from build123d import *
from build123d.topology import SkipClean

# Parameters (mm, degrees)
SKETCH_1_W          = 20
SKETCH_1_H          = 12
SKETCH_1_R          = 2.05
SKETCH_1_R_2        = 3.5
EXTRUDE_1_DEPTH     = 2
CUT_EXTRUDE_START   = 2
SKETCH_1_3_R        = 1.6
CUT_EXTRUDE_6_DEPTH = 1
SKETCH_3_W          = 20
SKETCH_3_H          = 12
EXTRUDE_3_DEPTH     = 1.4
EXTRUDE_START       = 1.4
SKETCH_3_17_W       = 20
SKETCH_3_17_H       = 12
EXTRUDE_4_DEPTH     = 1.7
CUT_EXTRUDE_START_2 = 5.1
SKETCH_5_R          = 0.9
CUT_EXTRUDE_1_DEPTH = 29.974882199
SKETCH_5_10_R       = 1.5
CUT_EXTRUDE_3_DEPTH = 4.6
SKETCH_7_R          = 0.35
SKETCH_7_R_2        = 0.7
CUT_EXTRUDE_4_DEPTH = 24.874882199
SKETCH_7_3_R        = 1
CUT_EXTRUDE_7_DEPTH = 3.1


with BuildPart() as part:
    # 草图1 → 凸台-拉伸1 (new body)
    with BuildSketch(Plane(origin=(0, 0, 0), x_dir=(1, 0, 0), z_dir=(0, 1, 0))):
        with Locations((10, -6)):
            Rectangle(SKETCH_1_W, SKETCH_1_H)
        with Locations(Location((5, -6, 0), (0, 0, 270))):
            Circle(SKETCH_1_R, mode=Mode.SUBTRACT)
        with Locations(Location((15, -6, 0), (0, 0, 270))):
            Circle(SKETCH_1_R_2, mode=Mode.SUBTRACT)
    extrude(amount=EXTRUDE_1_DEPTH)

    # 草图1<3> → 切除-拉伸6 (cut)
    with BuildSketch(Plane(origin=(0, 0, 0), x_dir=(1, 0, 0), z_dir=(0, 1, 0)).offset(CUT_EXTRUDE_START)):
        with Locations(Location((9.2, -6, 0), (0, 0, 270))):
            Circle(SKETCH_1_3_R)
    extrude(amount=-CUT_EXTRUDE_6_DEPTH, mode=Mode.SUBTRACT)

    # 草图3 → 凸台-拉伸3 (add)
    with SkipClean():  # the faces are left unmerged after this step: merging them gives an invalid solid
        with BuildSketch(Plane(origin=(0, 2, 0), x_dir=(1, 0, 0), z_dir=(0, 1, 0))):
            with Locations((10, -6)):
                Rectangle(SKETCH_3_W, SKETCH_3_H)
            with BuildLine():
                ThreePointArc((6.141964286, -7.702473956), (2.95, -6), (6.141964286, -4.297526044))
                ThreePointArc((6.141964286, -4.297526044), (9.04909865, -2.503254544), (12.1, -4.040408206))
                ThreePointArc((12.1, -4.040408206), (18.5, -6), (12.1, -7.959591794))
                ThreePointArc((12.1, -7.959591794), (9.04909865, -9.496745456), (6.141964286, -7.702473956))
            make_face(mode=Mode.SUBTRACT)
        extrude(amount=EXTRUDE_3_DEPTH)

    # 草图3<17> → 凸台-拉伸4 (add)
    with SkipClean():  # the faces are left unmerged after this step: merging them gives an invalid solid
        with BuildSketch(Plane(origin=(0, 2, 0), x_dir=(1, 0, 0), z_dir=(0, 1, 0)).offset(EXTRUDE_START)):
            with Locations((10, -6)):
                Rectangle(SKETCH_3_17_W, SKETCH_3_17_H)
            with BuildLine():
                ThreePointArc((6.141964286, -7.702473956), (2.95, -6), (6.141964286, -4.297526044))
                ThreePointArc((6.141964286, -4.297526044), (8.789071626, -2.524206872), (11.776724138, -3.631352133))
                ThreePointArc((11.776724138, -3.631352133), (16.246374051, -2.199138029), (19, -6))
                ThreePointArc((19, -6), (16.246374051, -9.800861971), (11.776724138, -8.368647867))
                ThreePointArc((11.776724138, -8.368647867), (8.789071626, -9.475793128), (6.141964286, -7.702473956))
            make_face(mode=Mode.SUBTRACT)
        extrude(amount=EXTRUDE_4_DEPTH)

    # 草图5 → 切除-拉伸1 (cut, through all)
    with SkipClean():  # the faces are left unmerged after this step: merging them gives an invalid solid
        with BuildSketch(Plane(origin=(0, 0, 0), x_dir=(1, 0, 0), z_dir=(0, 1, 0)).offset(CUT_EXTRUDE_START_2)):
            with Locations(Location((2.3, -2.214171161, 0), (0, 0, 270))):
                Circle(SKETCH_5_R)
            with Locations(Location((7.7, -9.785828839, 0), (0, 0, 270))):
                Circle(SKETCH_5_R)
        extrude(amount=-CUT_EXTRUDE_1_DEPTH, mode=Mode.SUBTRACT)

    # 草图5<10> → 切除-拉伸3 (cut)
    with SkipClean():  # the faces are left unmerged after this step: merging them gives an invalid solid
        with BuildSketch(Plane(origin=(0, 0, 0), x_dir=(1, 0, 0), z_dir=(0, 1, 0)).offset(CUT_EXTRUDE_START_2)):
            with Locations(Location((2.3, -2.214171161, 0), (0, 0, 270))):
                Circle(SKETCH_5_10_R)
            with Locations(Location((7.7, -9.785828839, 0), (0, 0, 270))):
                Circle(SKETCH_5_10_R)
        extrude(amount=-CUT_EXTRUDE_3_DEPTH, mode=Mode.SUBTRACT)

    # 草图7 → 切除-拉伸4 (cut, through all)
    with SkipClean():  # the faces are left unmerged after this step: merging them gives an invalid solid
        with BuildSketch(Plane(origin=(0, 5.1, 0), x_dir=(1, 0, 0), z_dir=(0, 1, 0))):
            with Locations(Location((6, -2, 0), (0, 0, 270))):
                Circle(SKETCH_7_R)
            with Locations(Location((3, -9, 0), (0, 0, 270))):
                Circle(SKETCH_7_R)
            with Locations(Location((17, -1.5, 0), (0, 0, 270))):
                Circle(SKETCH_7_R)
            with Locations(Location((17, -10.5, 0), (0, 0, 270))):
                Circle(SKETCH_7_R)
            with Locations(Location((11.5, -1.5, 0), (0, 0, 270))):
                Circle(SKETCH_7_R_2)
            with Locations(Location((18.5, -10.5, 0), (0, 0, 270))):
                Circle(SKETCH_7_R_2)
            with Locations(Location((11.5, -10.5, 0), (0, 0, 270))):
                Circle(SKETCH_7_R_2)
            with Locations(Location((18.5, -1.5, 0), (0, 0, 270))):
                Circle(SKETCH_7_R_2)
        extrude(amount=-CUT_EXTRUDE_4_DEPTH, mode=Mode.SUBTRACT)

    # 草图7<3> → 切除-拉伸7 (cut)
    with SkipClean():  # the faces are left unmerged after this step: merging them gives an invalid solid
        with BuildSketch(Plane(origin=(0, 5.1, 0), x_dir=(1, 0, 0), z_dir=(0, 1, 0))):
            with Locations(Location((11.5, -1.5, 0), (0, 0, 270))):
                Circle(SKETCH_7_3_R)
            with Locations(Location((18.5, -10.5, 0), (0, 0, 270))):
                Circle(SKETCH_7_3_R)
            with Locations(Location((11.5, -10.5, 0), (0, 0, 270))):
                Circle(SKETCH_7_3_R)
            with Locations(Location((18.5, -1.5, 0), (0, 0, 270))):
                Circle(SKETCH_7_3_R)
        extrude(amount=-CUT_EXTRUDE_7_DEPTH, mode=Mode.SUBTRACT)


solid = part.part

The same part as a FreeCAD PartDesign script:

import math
import FreeCAD as App
import Part
import Sketcher


def add_polygon(sketch, points):
    """Adds a closed chain of lines whose ends are joined by coincident constraints."""
    first, n = sketch.GeometryCount, len(points)
    for a, b in zip(points, points[1:] + points[:1]):
        sketch.addGeometry(Part.LineSegment(App.Vector(*a, 0), App.Vector(*b, 0)), False)
    for i in range(n):
        sketch.addConstraint(Sketcher.Constraint("Coincident", first + i, 2, first + (i + 1) % n, 1))

doc = App.newDocument("Part")
body = doc.addObject("PartDesign::Body", "Body")

sketch1 = body.newObject("Sketcher::SketchObject", "Sketch")
sketch1.AttachmentSupport = (doc.getObject("XZ_Plane"), [""])
sketch1.MapMode = "FlatFace"
add_polygon(sketch1, [(0, 0), (0, 12), (20, 12), (20, 0)])
sketch1.addGeometry(Part.Circle(App.Vector(5, 6, 0), App.Vector(0, 0, 1), 2), False)
sketch1.addGeometry(Part.Circle(App.Vector(15, 6, 0), App.Vector(0, 0, 1), 3.5), False)
sketch1.addConstraint([
    Sketcher.Constraint("Vertical", 0),
    Sketcher.Constraint("Horizontal", 1),
    Sketcher.Constraint("Vertical", 2),
    Sketcher.Constraint("Horizontal", 3),
    Sketcher.Constraint("Coincident", 3, 2, -1, 1),
    Sketcher.Constraint("Horizontal", 4, 3, 5, 3),
    Sketcher.Constraint("Diameter", 5, 7.0),
    Sketcher.Constraint("Diameter", 4, 4.1),
    Sketcher.Constraint("DistanceX", 1, 1, 1, 2, 20.0),
    Sketcher.Constraint("DistanceY", 0, 1, 0, 2, 12.0),
    Sketcher.Constraint("DistanceX", -1, 1, 4, 3, 5.0),
    Sketcher.Constraint("DistanceY", -1, 1, 4, 3, 6.0),
    Sketcher.Constraint("DistanceX", -1, 1, 5, 3, 15.0),
])
pad1 = body.newObject("PartDesign::Pad", "Pad")
pad1.Profile = sketch1
pad1.Length = 2
pad1.Reversed = True

sketch2 = body.newObject("Sketcher::SketchObject", "Sketch001")
sketch2.AttachmentSupport = (doc.getObject("XZ_Plane"), [""])
sketch2.MapMode = "FlatFace"
sketch2.AttachmentOffset = App.Placement(App.Vector(0, 0, -2), App.Rotation())
sketch2.addGeometry(Part.Circle(App.Vector(9.2, 6, 0), App.Vector(0, 0, 1), 1.6), False)
sketch2.addConstraint([
    Sketcher.Constraint("Diameter", 0, 3.2),
    Sketcher.Constraint("DistanceY", -1, 1, 0, 3, 6.0),
    Sketcher.Constraint("DistanceX", -1, 1, 0, 3, 9.2),
])
pocket1 = body.newObject("PartDesign::Pocket", "Pocket")
pocket1.Profile = sketch2
pocket1.Length = 1
pocket1.Reversed = True

sketch3 = body.newObject("Sketcher::SketchObject", "Sketch002")
sketch3.AttachmentSupport = (doc.getObject("XZ_Plane"), [""])
sketch3.MapMode = "FlatFace"
sketch3.AttachmentOffset = App.Placement(App.Vector(0, 0, -2), App.Rotation())
add_polygon(sketch3, [(0, 0), (0, 12), (20, 12), (20, 0)])
sketch3.addGeometry(Part.ArcOfCircle(Part.Circle(App.Vector(9.2, 6, 0), App.Vector(0, 0, 1), 3.5), math.radians(34), math.radians(151)), False)
sketch3.addGeometry(Part.ArcOfCircle(Part.Circle(App.Vector(5, 6, 0), App.Vector(0, 0, 1), 2), math.radians(56), math.radians(304)), False)
sketch3.addGeometry(Part.ArcOfCircle(Part.Circle(App.Vector(9.2, 6, 0), App.Vector(0, 0, 1), 3.5), math.radians(-151), math.radians(-34)), False)
sketch3.addGeometry(Part.ArcOfCircle(Part.Circle(App.Vector(15, 6, 0), App.Vector(0, 0, 1), 3.5), math.radians(-146), math.radians(146)), False)
sketch3.addConstraint([
    Sketcher.Constraint("Coincident", 4, 2, 5, 1),
    Sketcher.Constraint("Coincident", 5, 2, 6, 1),
    Sketcher.Constraint("Coincident", 6, 2, 7, 1),
    Sketcher.Constraint("Coincident", 7, 2, 4, 1),
    Sketcher.Constraint("Vertical", 0),
    Sketcher.Constraint("Horizontal", 1),
    Sketcher.Constraint("Vertical", 2),
    Sketcher.Constraint("Horizontal", 3),
    Sketcher.Constraint("Coincident", 3, 2, -1, 1),
    Sketcher.Constraint("Coincident", 6, 3, 4, 3),
    Sketcher.Constraint("Equal", 4, 6),
    Sketcher.Constraint("Equal", 6, 7),
    Sketcher.Constraint("Horizontal", 4, 3, 5, 3),
    Sketcher.Constraint("Horizontal", 6, 3, 7, 3),
    Sketcher.Constraint("Radius", 4, 3.5),
    Sketcher.Constraint("DistanceX", 1, 1, 1, 2, 20.0),
    Sketcher.Constraint("DistanceY", 0, 1, 0, 2, 12.0),
    Sketcher.Constraint("Radius", 5, 2.05),
    Sketcher.Constraint("DistanceY", -1, 1, 4, 3, 6.0),
    Sketcher.Constraint("DistanceX", -1, 1, 5, 3, 5.0),
    Sketcher.Constraint("DistanceX", -1, 1, 7, 3, 15.0),
    Sketcher.Constraint("DistanceX", -1, 1, 4, 3, 9.2),
])
pad2 = body.newObject("PartDesign::Pad", "Pad001")
pad2.Profile = sketch3
pad2.Length = 1.4
pad2.Reversed = True

sketch4 = body.newObject("Sketcher::SketchObject", "Sketch003")
sketch4.AttachmentSupport = (doc.getObject("XZ_Plane"), [""])
sketch4.MapMode = "FlatFace"
sketch4.AttachmentOffset = App.Placement(App.Vector(0, 0, -3.4), App.Rotation())
add_polygon(sketch4, [(0, 0), (0, 12), (20, 12), (20, 0)])
sketch4.addGeometry(Part.ArcOfCircle(Part.Circle(App.Vector(9.2, 6, 0), App.Vector(0, 0, 1), 3.5), math.radians(43), math.radians(151)), False)
sketch4.addGeometry(Part.ArcOfCircle(Part.Circle(App.Vector(5, 6, 0), App.Vector(0, 0, 1), 2), math.radians(56), math.radians(304)), False)
sketch4.addGeometry(Part.ArcOfCircle(Part.Circle(App.Vector(9.2, 6, 0), App.Vector(0, 0, 1), 3.5), math.radians(-151), math.radians(-43)), False)
sketch4.addGeometry(Part.ArcOfCircle(Part.Circle(App.Vector(15, 6, 0), App.Vector(0, 0, 1), 4), math.radians(-144), math.radians(0)), False)
sketch4.addGeometry(Part.ArcOfCircle(Part.Circle(App.Vector(15, 6, 0), App.Vector(0, 0, 1), 4), math.radians(0), math.radians(144)), False)
sketch4.addConstraint([
    Sketcher.Constraint("Coincident", 4, 2, 5, 1),
    Sketcher.Constraint("Coincident", 5, 2, 6, 1),
    Sketcher.Constraint("Coincident", 6, 2, 7, 1),
    Sketcher.Constraint("Tangent", 7, 2, 8, 1),
    Sketcher.Constraint("Coincident", 8, 2, 4, 1),
    Sketcher.Constraint("Vertical", 0),
    Sketcher.Constraint("Horizontal", 1),
    Sketcher.Constraint("Vertical", 2),
    Sketcher.Constraint("Horizontal", 3),
    Sketcher.Constraint("Coincident", 3, 2, -1, 1),
    Sketcher.Constraint("Coincident", 6, 3, 4, 3),
    Sketcher.Constraint("Equal", 4, 6),
    Sketcher.Constraint("Equal", 7, 8),
    Sketcher.Constraint("Horizontal", 4, 3, 5, 3),
    Sketcher.Constraint("Horizontal", 6, 3, 7, 3),
    Sketcher.Constraint("Horizontal", 8, 3, 7, 2),
    Sketcher.Constraint("Radius", 7, 4.0),
    Sketcher.Constraint("Radius", 4, 3.5),
    Sketcher.Constraint("DistanceX", 1, 1, 1, 2, 20.0),
    Sketcher.Constraint("DistanceY", 0, 1, 0, 2, 12.0),
    Sketcher.Constraint("Radius", 5, 2.05),
    Sketcher.Constraint("DistanceY", -1, 1, 4, 3, 6.0),
    Sketcher.Constraint("DistanceX", -1, 1, 5, 3, 5.0),
    Sketcher.Constraint("DistanceX", -1, 1, 7, 3, 15.0),
    Sketcher.Constraint("DistanceX", -1, 1, 4, 3, 9.2),
])
pad3 = body.newObject("PartDesign::Pad", "Pad002")
pad3.Profile = sketch4
pad3.Length = 1.7
pad3.Reversed = True

sketch5 = body.newObject("Sketcher::SketchObject", "Sketch004")
sketch5.AttachmentSupport = (doc.getObject("XZ_Plane"), [""])
sketch5.MapMode = "FlatFace"
sketch5.AttachmentOffset = App.Placement(App.Vector(0, 0, -5.1), App.Rotation())
sketch5.addGeometry([
    Part.Circle(App.Vector(2.3, 2.2, 0), App.Vector(0, 0, 1), 0.9),
    Part.Circle(App.Vector(7.7, 9.8, 0), App.Vector(0, 0, 1), 0.9),
], False)
sketch5.addConstraint([
    Sketcher.Constraint("Equal", 0, 1),
    Sketcher.Constraint("Diameter", 0, 1.8),
    Sketcher.Constraint("DistanceX", -1, 1, 0, 3, 2.3),
    Sketcher.Constraint("DistanceX", -1, 1, 1, 3, 7.7),
    Sketcher.Constraint("DistanceY", -1, 1, 0, 3, 2.214171),
    Sketcher.Constraint("DistanceY", -1, 1, 1, 3, 9.785829),
])
pocket2 = body.newObject("PartDesign::Pocket", "Pocket001")
pocket2.Profile = sketch5
pocket2.Type = "ThroughAll"
pocket2.Reversed = True

sketch6 = body.newObject("Sketcher::SketchObject", "Sketch005")
sketch6.AttachmentSupport = (doc.getObject("XZ_Plane"), [""])
sketch6.MapMode = "FlatFace"
sketch6.AttachmentOffset = App.Placement(App.Vector(0, 0, -5.1), App.Rotation())
sketch6.addGeometry([
    Part.Circle(App.Vector(2.3, 2.2, 0), App.Vector(0, 0, 1), 1.5),
    Part.Circle(App.Vector(7.7, 9.8, 0), App.Vector(0, 0, 1), 1.5),
], False)
sketch6.addConstraint([
    Sketcher.Constraint("Equal", 0, 1),
    Sketcher.Constraint("Diameter", 0, 3.0),
    Sketcher.Constraint("DistanceX", -1, 1, 0, 3, 2.3),
    Sketcher.Constraint("DistanceX", -1, 1, 1, 3, 7.7),
    Sketcher.Constraint("DistanceY", -1, 1, 0, 3, 2.214171),
    Sketcher.Constraint("DistanceY", -1, 1, 1, 3, 9.785829),
])
pocket3 = body.newObject("PartDesign::Pocket", "Pocket002")
pocket3.Profile = sketch6
pocket3.Length = 4.6
pocket3.Reversed = True

sketch7 = body.newObject("Sketcher::SketchObject", "Sketch006")
sketch7.AttachmentSupport = (doc.getObject("XZ_Plane"), [""])
sketch7.MapMode = "FlatFace"
sketch7.AttachmentOffset = App.Placement(App.Vector(0, 0, -5.1), App.Rotation())
sketch7.addGeometry([
    Part.Circle(App.Vector(6, 2, 0), App.Vector(0, 0, 1), 0.35),
    Part.Circle(App.Vector(3, 9, 0), App.Vector(0, 0, 1), 0.35),
    Part.Circle(App.Vector(17, 1.5, 0), App.Vector(0, 0, 1), 0.35),
    Part.Circle(App.Vector(17, 10.5, 0), App.Vector(0, 0, 1), 0.35),
    Part.Circle(App.Vector(11.5, 1.5, 0), App.Vector(0, 0, 1), 0.7),
    Part.Circle(App.Vector(18.5, 10.5, 0), App.Vector(0, 0, 1), 0.7),
    Part.Circle(App.Vector(11.5, 10.5, 0), App.Vector(0, 0, 1), 0.7),
    Part.Circle(App.Vector(18.5, 1.5, 0), App.Vector(0, 0, 1), 0.7),
], False)
sketch7.addConstraint([
    Sketcher.Constraint("Equal", 0, 1),
    Sketcher.Constraint("Equal", 1, 2),
    Sketcher.Constraint("Equal", 2, 3),
    Sketcher.Constraint("Equal", 4, 5),
    Sketcher.Constraint("Equal", 5, 6),
    Sketcher.Constraint("Equal", 6, 7),
    Sketcher.Constraint("Horizontal", 2, 3, 4, 3),
    Sketcher.Constraint("Horizontal", 3, 3, 5, 3),
    Sketcher.Constraint("Horizontal", 5, 3, 6, 3),
    Sketcher.Constraint("Horizontal", 4, 3, 7, 3),
    Sketcher.Constraint("Vertical", 2, 3, 3, 3),
    Sketcher.Constraint("Vertical", 4, 3, 6, 3),
    Sketcher.Constraint("Vertical", 5, 3, 7, 3),
    Sketcher.Constraint("Diameter", 0, 0.7),
    Sketcher.Constraint("Diameter", 4, 1.4),
    Sketcher.Constraint("DistanceX", -1, 1, 0, 3, 6.0),
    Sketcher.Constraint("DistanceY", -1, 1, 0, 3, 2.0),
    Sketcher.Constraint("DistanceX", -1, 1, 1, 3, 3.0),
    Sketcher.Constraint("DistanceY", -1, 1, 1, 3, 9.0),
    Sketcher.Constraint("DistanceX", -1, 1, 2, 3, 17.0),
    Sketcher.Constraint("DistanceY", 2, 3, 3, 3, 9.0),
    Sketcher.Constraint("DistanceX", 4, 3, 5, 3, 7.0),
    Sketcher.Constraint("DistanceY", -1, 1, 2, 3, 1.5),
    Sketcher.Constraint("DistanceX", -1, 1, 4, 3, 11.5),
])
pocket4 = body.newObject("PartDesign::Pocket", "Pocket003")
pocket4.Profile = sketch7
pocket4.Type = "ThroughAll"
pocket4.Reversed = True

sketch8 = body.newObject("Sketcher::SketchObject", "Sketch007")
sketch8.AttachmentSupport = (doc.getObject("XZ_Plane"), [""])
sketch8.MapMode = "FlatFace"
sketch8.AttachmentOffset = App.Placement(App.Vector(0, 0, -5.1), App.Rotation())
sketch8.addGeometry([
    Part.Circle(App.Vector(11.5, 1.5, 0), App.Vector(0, 0, 1), 1),
    Part.Circle(App.Vector(18.5, 10.5, 0), App.Vector(0, 0, 1), 1),
    Part.Circle(App.Vector(11.5, 10.5, 0), App.Vector(0, 0, 1), 1),
    Part.Circle(App.Vector(18.5, 1.5, 0), App.Vector(0, 0, 1), 1),
], False)
sketch8.addConstraint([
    Sketcher.Constraint("Equal", 0, 1),
    Sketcher.Constraint("Equal", 1, 2),
    Sketcher.Constraint("Equal", 2, 3),
    Sketcher.Constraint("Horizontal", 1, 3, 2, 3),
    Sketcher.Constraint("Horizontal", 0, 3, 3, 3),
    Sketcher.Constraint("Vertical", 0, 3, 2, 3),
    Sketcher.Constraint("Vertical", 1, 3, 3, 3),
    Sketcher.Constraint("Diameter", 0, 2.0),
    Sketcher.Constraint("DistanceX", 0, 3, 1, 3, 7.0),
    Sketcher.Constraint("DistanceY", 0, 3, 1, 3, 9.0),
    Sketcher.Constraint("DistanceX", -1, 1, 0, 3, 11.5),
    Sketcher.Constraint("DistanceY", -1, 1, 0, 3, 1.5),
])
pocket5 = body.newObject("PartDesign::Pocket", "Pocket004")
pocket5.Profile = sketch8
pocket5.Length = 3.1
pocket5.Reversed = True

doc.recompute()
